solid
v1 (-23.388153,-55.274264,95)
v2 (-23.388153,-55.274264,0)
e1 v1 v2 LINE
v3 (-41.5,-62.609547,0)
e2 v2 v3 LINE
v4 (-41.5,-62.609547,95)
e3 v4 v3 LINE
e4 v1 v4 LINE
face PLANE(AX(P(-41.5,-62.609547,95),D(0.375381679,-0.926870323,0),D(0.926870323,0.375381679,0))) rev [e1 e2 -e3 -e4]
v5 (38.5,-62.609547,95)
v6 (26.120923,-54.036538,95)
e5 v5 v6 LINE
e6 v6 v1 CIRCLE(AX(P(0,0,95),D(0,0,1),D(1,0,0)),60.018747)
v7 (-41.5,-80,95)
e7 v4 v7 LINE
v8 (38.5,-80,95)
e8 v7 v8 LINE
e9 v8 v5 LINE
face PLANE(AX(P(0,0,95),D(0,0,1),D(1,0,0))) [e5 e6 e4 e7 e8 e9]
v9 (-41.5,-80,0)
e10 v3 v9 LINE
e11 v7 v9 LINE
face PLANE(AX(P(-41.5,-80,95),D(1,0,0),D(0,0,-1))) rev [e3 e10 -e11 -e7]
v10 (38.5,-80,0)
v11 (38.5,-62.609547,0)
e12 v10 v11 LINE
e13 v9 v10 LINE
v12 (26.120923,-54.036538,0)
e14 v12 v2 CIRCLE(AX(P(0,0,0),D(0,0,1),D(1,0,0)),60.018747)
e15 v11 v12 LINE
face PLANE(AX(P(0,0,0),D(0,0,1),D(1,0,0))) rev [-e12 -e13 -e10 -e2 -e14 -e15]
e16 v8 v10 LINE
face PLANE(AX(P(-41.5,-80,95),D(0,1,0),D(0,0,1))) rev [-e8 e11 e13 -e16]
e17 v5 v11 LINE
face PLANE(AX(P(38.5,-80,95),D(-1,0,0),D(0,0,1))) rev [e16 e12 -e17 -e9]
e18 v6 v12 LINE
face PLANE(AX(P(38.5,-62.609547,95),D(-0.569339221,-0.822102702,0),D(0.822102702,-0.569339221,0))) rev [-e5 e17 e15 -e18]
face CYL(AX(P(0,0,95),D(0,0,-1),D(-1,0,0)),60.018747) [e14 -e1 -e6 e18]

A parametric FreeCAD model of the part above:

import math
import FreeCAD as App
import Part
import Sketcher

doc = App.newDocument("Part")
body = doc.addObject("PartDesign::Body", "Body")

# Sketch on XY plane
sketch1 = doc.addObject("Sketcher::SketchObject", "Sketch")
body.addObject(sketch1)
sketch1.AttachmentSupport = (doc.XY_Plane, [""])
sketch1.MapMode = "FlatFace"
sketch1.addGeometry([
    Part.LineSegment(App.Vector(-42, -80, 0), App.Vector(38, -80, 0)),  # 0
    Part.LineSegment(App.Vector(38, -80, 0), App.Vector(38, -63, 0)),  # 1
    Part.LineSegment(App.Vector(38, -63, 0), App.Vector(26, -54, 0)),  # 2
    Part.ArcOfCircle(Part.Circle(App.Vector(0, 0, 0), App.Vector(0, 0, 1), 60), math.radians(-64), math.radians(247)),  # 3
    Part.LineSegment(App.Vector(-23, -55, 0), App.Vector(-42, -63, 0)),  # 4
    Part.LineSegment(App.Vector(-42, -63, 0), App.Vector(-42, -80, 0)),  # 5
], False)
sketch1.addConstraint([
    Sketcher.Constraint("Coincident", 0, 2, 1, 1),
    Sketcher.Constraint("Coincident", 1, 2, 2, 1),
    Sketcher.Constraint("Coincident", 2, 2, 3, 1),
    Sketcher.Constraint("Coincident", 3, 2, 4, 1),
    Sketcher.Constraint("Coincident", 4, 2, 5, 1),
    Sketcher.Constraint("Coincident", 5, 2, 0, 1),
    Sketcher.Constraint("Horizontal", 0),
    Sketcher.Constraint("Vertical", 1),
    Sketcher.Constraint("Vertical", 5),
    Sketcher.Constraint("Coincident", 3, 3, -1, 1),
    Sketcher.Constraint("Horizontal", 1, 2, 4, 2),
    Sketcher.Constraint("DistanceX", 0, 1, 0, 2, 80.0),
    Sketcher.Constraint("DistanceY", 0, 2, -1, 1, 80.0),
    Sketcher.Constraint("DistanceX", -1, 1, 0, 2, 38.5),
    Sketcher.Constraint("Radius", 3, 60.018747),
    Sketcher.Constraint("DistanceY", 1, 1, 1, 2, 17.390453),
    Sketcher.Constraint("DistanceY", 1, 2, 2, 2, 8.573009),
    Sketcher.Constraint("Distance", 4, 19.540864),
])
pad1 = doc.addObject("PartDesign::Pad", "Pad")
body.addObject(pad1)
pad1.Profile = sketch1
pad1.Length = 95

doc.recompute()
